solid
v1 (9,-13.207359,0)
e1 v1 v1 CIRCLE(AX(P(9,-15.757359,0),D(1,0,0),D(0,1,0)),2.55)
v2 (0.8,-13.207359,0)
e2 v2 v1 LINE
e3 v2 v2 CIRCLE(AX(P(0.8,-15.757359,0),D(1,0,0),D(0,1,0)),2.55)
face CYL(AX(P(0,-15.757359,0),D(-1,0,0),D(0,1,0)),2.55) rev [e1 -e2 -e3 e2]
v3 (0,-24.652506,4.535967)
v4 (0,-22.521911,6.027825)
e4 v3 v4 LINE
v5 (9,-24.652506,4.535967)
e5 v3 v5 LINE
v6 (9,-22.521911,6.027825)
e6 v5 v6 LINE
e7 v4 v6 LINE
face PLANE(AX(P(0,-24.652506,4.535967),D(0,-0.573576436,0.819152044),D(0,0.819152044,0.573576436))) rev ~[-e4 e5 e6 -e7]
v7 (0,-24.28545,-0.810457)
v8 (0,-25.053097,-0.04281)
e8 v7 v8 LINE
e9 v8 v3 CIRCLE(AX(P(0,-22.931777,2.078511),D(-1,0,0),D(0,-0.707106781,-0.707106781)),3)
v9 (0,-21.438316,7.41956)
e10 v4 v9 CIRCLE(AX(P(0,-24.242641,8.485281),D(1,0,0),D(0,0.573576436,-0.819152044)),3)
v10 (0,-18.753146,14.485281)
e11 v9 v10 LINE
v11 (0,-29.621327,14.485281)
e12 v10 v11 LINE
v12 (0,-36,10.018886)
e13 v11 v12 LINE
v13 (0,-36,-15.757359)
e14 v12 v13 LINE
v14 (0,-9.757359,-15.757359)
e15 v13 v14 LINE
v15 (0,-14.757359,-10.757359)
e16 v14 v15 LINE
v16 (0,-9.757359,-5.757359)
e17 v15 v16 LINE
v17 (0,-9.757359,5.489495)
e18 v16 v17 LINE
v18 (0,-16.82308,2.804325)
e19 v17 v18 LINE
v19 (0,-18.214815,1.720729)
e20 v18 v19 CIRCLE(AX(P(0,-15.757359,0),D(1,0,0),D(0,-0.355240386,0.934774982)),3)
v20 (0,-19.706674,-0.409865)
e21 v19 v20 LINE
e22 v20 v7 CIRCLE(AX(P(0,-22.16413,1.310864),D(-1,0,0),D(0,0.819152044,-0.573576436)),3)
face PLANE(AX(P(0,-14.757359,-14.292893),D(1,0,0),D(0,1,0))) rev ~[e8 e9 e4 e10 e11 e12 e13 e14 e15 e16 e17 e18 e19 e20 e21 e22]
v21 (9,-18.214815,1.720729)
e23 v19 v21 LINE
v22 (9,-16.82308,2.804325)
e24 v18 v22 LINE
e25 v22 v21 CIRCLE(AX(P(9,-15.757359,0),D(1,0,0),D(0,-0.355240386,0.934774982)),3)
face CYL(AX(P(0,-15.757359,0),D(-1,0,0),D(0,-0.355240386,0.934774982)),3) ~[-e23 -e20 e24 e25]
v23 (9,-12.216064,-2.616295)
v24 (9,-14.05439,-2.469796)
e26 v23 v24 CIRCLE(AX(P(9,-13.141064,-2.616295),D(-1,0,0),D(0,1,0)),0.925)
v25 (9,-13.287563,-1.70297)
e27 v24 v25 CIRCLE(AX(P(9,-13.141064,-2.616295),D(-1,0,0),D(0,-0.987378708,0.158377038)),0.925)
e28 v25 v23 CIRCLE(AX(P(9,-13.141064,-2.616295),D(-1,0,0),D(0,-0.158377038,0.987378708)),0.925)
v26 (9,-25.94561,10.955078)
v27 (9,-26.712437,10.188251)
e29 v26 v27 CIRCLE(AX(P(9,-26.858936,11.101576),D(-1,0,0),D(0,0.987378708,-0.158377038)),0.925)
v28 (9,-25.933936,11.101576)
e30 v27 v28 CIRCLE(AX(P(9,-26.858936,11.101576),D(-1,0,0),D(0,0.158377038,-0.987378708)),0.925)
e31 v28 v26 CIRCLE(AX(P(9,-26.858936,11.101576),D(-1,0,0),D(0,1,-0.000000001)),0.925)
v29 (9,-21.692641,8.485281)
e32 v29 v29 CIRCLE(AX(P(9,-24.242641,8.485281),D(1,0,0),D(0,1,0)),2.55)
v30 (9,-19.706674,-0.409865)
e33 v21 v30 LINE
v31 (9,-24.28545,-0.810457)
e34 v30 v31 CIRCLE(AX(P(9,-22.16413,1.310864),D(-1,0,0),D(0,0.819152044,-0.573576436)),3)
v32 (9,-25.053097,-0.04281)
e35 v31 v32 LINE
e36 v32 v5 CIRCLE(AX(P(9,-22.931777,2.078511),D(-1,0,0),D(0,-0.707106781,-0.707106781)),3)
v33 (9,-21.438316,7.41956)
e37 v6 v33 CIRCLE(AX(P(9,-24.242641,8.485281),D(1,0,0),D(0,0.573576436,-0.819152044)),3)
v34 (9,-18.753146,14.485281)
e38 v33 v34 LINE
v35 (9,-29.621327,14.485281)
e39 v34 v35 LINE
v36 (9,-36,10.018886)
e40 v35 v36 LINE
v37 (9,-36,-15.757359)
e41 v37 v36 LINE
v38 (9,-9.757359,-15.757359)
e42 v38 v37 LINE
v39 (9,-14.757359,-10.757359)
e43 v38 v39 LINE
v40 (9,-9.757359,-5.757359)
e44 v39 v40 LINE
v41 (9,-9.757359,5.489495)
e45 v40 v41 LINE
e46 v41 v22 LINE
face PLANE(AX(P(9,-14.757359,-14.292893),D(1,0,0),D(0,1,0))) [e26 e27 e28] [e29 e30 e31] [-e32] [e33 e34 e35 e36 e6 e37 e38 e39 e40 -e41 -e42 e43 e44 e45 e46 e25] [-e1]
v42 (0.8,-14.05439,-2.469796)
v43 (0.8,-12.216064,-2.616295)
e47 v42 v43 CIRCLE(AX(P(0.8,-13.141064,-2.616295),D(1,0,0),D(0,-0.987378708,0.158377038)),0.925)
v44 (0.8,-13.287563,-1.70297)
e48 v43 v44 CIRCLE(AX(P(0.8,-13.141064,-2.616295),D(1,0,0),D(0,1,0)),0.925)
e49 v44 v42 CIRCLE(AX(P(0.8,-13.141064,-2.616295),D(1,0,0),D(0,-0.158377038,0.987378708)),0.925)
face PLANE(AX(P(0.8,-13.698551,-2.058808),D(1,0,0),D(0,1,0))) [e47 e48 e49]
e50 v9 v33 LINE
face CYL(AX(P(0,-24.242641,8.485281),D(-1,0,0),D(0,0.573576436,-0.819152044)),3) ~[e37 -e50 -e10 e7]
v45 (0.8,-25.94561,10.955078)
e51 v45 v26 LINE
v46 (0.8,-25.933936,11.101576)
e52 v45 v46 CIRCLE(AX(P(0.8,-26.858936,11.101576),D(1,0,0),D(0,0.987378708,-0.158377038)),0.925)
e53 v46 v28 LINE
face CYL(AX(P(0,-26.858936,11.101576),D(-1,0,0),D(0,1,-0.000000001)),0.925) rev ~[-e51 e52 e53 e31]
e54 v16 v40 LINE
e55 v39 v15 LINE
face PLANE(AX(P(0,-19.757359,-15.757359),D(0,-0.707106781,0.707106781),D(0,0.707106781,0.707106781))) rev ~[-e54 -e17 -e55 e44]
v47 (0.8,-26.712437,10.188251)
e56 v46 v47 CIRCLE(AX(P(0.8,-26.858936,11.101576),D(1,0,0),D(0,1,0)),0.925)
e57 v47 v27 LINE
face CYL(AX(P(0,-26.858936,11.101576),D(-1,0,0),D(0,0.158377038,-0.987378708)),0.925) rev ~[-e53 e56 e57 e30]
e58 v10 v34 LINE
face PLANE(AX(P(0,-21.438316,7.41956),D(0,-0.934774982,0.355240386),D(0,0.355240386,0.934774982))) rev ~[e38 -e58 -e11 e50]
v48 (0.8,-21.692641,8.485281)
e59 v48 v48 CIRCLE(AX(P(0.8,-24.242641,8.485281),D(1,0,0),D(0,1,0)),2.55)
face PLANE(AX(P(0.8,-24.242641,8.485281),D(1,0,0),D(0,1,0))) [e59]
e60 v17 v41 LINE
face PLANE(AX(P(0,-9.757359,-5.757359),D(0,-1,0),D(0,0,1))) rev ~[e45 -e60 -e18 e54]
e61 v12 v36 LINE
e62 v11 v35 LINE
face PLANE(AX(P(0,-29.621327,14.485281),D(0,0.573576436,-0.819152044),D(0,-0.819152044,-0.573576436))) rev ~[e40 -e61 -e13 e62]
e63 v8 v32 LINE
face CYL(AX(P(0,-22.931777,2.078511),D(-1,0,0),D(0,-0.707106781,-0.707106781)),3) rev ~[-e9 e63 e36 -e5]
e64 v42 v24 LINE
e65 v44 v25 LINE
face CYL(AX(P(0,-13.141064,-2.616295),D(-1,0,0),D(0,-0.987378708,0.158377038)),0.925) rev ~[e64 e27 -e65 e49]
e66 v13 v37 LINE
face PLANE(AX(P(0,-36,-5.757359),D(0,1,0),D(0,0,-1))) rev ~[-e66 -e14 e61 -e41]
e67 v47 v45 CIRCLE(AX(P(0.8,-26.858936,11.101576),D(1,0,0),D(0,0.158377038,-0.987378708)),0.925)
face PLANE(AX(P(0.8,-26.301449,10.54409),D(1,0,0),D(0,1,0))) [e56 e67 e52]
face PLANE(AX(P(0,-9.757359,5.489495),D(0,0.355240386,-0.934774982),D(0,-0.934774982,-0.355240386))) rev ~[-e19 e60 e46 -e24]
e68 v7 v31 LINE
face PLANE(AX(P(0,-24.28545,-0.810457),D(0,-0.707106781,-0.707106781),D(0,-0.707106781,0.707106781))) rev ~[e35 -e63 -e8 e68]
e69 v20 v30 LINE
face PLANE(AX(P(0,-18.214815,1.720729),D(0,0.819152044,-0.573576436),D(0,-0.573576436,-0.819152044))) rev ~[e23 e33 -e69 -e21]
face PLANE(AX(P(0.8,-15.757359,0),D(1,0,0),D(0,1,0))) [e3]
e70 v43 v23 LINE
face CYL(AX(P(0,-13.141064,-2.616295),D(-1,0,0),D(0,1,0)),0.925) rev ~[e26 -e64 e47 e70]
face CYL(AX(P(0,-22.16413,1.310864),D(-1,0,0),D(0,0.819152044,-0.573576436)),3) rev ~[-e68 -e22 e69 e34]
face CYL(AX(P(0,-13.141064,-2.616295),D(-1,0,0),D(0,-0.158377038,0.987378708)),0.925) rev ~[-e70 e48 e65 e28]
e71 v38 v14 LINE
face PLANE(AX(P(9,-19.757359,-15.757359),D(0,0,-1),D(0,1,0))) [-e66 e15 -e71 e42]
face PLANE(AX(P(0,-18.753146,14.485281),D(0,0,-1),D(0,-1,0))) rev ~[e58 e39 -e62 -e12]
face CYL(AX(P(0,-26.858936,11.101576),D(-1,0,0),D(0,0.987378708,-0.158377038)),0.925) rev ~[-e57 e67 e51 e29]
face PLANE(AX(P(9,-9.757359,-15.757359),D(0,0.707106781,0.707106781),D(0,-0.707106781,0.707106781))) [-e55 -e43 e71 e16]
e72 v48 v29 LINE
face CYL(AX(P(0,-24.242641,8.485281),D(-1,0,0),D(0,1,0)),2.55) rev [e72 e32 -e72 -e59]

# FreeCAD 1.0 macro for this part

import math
import FreeCAD as App
import Part
import Sketcher

V = App.Vector
Q = App.Units.Quantity

doc = App.newDocument("Part")
params = doc.addObject("Spreadsheet::Sheet", "Params")
for row, (alias, value) in enumerate([
    ("sketch1_radius", "3 mm"),
    ("sketch1_diameter", "5.1 mm"),
    ("pad1_length", "9 mm"),
    ("sketch2_diameter", "5.1 mm"),
    ("pad2_length", "0.8 mm"),
    ("sketch3_height", "10 mm"),
    ("pad3_length", "9 mm"),
    ("sketch4_width", "10 mm"),
    ("pad4_length", "9 mm"),
], start=1):
    params.set(f"A{row}", alias)
    params.set(f"B{row}", "=" + value)
    params.setAlias(f"B{row}", alias)

body = doc.addObject("PartDesign::Body", "Body")

sketch1 = body.newObject("Sketcher::SketchObject", "Sketch")
sketch1.AttachmentSupport = (doc.getObject("YZ_Plane"), [""])
sketch1.MapMode = "FlatFace"
sketch1.addGeometry([
    Part.ArcOfCircle(Part.Circle(V(-24.24, 8.49, 0), V(0, 0, 1), 3), math.radians(-55), math.radians(-21)),
    Part.LineSegment(V(-21.44, 7.42, 0), V(-18.75, 14.49, 0)),
    Part.LineSegment(V(-18.75, 14.49, 0), V(-29.62, 14.49, 0)),
    Part.LineSegment(V(-29.62, 14.49, 0), V(-36, 10.02, 0)),
    Part.LineSegment(V(-36, 10.02, 0), V(-36, -5.76, 0)),
    Part.LineSegment(V(-36, -5.76, 0), V(-9.76, -5.76, 0)),
    Part.LineSegment(V(-9.76, -5.76, 0), V(-9.76, 5.49, 0)),
    Part.LineSegment(V(-9.76, 5.49, 0), V(-16.82, 2.8, 0)),
    Part.ArcOfCircle(Part.Circle(V(-15.76, 0, 0), V(0, 0, 1), 3), math.radians(111), math.radians(145)),
    Part.LineSegment(V(-18.21, 1.72, 0), V(-19.71, -0.41, 0)),
    Part.ArcOfCircle(Part.Circle(V(-22.16, 1.31, 0), V(0, 0, 1), 3), math.radians(-135), math.radians(-35)),
    Part.LineSegment(V(-24.29, -0.81, 0), V(-25.05, -0.04, 0)),
    Part.ArcOfCircle(Part.Circle(V(-22.93, 2.08, 0), V(0, 0, 1), 3), math.radians(125), math.radians(225)),
    Part.LineSegment(V(-24.65, 4.54, 0), V(-22.52, 6.03, 0)),
    Part.ArcOfCircle(Part.Circle(V(-13.14, -2.62, 0), V(0, 0, 1), 0.93), math.radians(0), math.radians(99)),
    Part.ArcOfCircle(Part.Circle(V(-13.14, -2.62, 0), V(0, 0, 1), 0.93), math.radians(171), math.radians(360)),
    Part.ArcOfCircle(Part.Circle(V(-13.14, -2.62, 0), V(0, 0, 1), 0.93), math.radians(99), math.radians(171)),
    Part.Circle(V(-15.76, 0, 0), V(0, 0, 1), 2.55),
    Part.Circle(V(-24.24, 8.49, 0), V(0, 0, 1), 2.55),
    Part.ArcOfCircle(Part.Circle(V(-26.86, 11.1, 0), V(0, 0, 1), 0.93), math.radians(-81), math.radians(-9)),
    Part.ArcOfCircle(Part.Circle(V(-26.86, 11.1, 0), V(0, 0, 1), 0.93), math.radians(0), math.radians(279)),
    Part.ArcOfCircle(Part.Circle(V(-26.86, 11.1, 0), V(0, 0, 1), 0.93), math.radians(-9.11), math.radians(0)),
], False)
sketch1.addConstraint([
    Sketcher.Constraint("Tangent", 0, 2, 1, 1),
    Sketcher.Constraint("Coincident", 1, 2, 2, 1),
    Sketcher.Constraint("Coincident", 2, 2, 3, 1),
    Sketcher.Constraint("Coincident", 3, 2, 4, 1),
    Sketcher.Constraint("Coincident", 4, 2, 5, 1),
    Sketcher.Constraint("Coincident", 5, 2, 6, 1),
    Sketcher.Constraint("Coincident", 6, 2, 7, 1),
    Sketcher.Constraint("Tangent", 7, 2, 8, 1),
    Sketcher.Constraint("Tangent", 8, 2, 9, 1),
    Sketcher.Constraint("Tangent", 9, 2, 10, 2),
    Sketcher.Constraint("Tangent", 10, 1, 11, 1),
    Sketcher.Constraint("Tangent", 11, 2, 12, 2),
    Sketcher.Constraint("Tangent", 12, 1, 13, 1),
    Sketcher.Constraint("Tangent", 13, 2, 0, 1),
    Sketcher.Constraint("Tangent", 14, 1, 15, 2),
    Sketcher.Constraint("Tangent", 15, 1, 16, 2),
    Sketcher.Constraint("Tangent", 16, 1, 14, 2),
    Sketcher.Constraint("Tangent", 19, 1, 20, 2),
    Sketcher.Constraint("Tangent", 20, 1, 21, 2),
    Sketcher.Constraint("Tangent", 21, 1, 19, 2),
    Sketcher.Constraint("Horizontal", 2),
    Sketcher.Constraint("Vertical", 4),
    Sketcher.Constraint("Horizontal", 5),
    Sketcher.Constraint("Vertical", 6),
    Sketcher.Constraint("Coincident", 17, 3, 8, 3),
    Sketcher.Constraint("Coincident", 18, 3, 0, 3),
    Sketcher.Constraint("Equal", 0, 8),
    Sketcher.Constraint("Equal", 8, 10),
    Sketcher.Constraint("Equal", 10, 12),
    Sketcher.Constraint("Equal", 17, 18),
    Sketcher.Constraint("Equal", 16, 19),
    Sketcher.Constraint("PointOnObject", 8, 3, -1),
    Sketcher.Constraint("Parallel", 3, 13),
    Sketcher.Constraint("Horizontal", 16, 3, 14, 1),
    Sketcher.Constraint("Horizontal", 21, 3, 20, 1),
    Sketcher.Constraint("Equal", 1, 7),
    Sketcher.Constraint("Equal", 9, 13),
    Sketcher.Constraint("Radius", 0, Q("3 mm")),
    Sketcher.Constraint("Diameter", 17, Q("5.1 mm")),
    Sketcher.Constraint("Angle", 3, Q("-145 deg")),
    Sketcher.Constraint("Angle", 9, Q("-125 deg")),
    Sketcher.Constraint("Angle", 11, Q("135 deg")),
    Sketcher.Constraint("DistanceX", 3, 2, -1, 1, Q("36 mm")),
    Sketcher.Constraint("Radius", 14, Q("0.925 mm")),
    Sketcher.Constraint("DistanceY", 0, 3, 1, 2, Q("6 mm")),
    Sketcher.Constraint("DistanceX", 8, 3, 5, 2, Q("6 mm")),
    Sketcher.Constraint("DistanceX", 2, 2, 2, 1, Q("10.868181 mm")),
    Sketcher.Constraint("DistanceX", 5, 1, 5, 2, Q("26.242641 mm")),
    Sketcher.Constraint("DistanceY", 14, 3, 15, 1, Q("0.146499 mm")),
    Sketcher.Constraint("DistanceX", 16, 1, 14, 3, Q("0.146499 mm")),
    Sketcher.Constraint("DistanceX", 19, 3, 19, 1, Q("0.146499 mm")),
    Sketcher.Constraint("DistanceY", 21, 1, 20, 1, Q("0.146499 mm")),
    Sketcher.Constraint("Distance", 1, Q("7.55874 mm")),
    Sketcher.Constraint("Distance", 3, Q("7.786922 mm")),
    Sketcher.Constraint("DistanceY", 4, 2, 4, 1, Q("15.776246 mm")),
    Sketcher.Constraint("DistanceX", 10, 3, -1, 1, Q("22.16413 mm")),
    Sketcher.Constraint("DistanceX", 15, 1, -1, 1, Q("14.05439 mm")),
    Sketcher.Constraint("DistanceY", 16, 1, -1, 1, Q("1.70297 mm")),
    Sketcher.Constraint("DistanceY", -1, 1, 19, 1, Q("10.188251 mm")),
    Sketcher.Constraint("DistanceX", 21, 1, -1, 1, Q("25.94561 mm")),
])
sketch1.setExpression("Constraints[37]", "Params.sketch1_radius")
sketch1.setExpression("Constraints[38]", "Params.sketch1_diameter")
pad1 = body.newObject("PartDesign::Pad", "Pad")
pad1.Profile = sketch1
pad1.setExpression("Length", "Params.pad1_length")

sketch2 = body.newObject("Sketcher::SketchObject", "Sketch001")
sketch2.AttachmentSupport = (doc.getObject("YZ_Plane"), [""])
sketch2.MapMode = "FlatFace"
sketch2.addGeometry([
    Part.Circle(V(-15.76, 0, 0), V(0, 0, 1), 2.55),
    Part.Circle(V(-24.24, 8.49, 0), V(0, 0, 1), 2.55),
    Part.ArcOfCircle(Part.Circle(V(-26.86, 11.1, 0), V(0, 0, 1), 0.93), math.radians(-81), math.radians(-9)),
    Part.ArcOfCircle(Part.Circle(V(-26.86, 11.1, 0), V(0, 0, 1), 0.93), math.radians(-9.11), math.radians(0)),
    Part.ArcOfCircle(Part.Circle(V(-26.86, 11.1, 0), V(0, 0, 1), 0.93), math.radians(0), math.radians(279)),
    Part.ArcOfCircle(Part.Circle(V(-13.14, -2.62, 0), V(0, 0, 1), 0.93), math.radians(99), math.radians(171)),
    Part.ArcOfCircle(Part.Circle(V(-13.14, -2.62, 0), V(0, 0, 1), 0.93), math.radians(171), math.radians(360)),
    Part.ArcOfCircle(Part.Circle(V(-13.14, -2.62, 0), V(0, 0, 1), 0.93), math.radians(0), math.radians(99)),
], False)
sketch2.addConstraint([
    Sketcher.Constraint("Tangent", 2, 2, 3, 1),
    Sketcher.Constraint("Tangent", 3, 2, 4, 1),
    Sketcher.Constraint("Tangent", 4, 2, 2, 1),
    Sketcher.Constraint("Tangent", 5, 2, 6, 1),
    Sketcher.Constraint("Tangent", 6, 2, 7, 1),
    Sketcher.Constraint("Tangent", 7, 2, 5, 1),
    Sketcher.Constraint("Equal", 0, 1),
    Sketcher.Constraint("Equal", 4, 5),
    Sketcher.Constraint("PointOnObject", 0, 3, -1),
    Sketcher.Constraint("Horizontal", 4, 3, 3, 2),
    Sketcher.Constraint("Horizontal", 7, 3, 6, 2),
    Sketcher.Constraint("Diameter", 0, Q("5.1 mm")),
    Sketcher.Constraint("Radius", 2, Q("0.925 mm")),
    Sketcher.Constraint("DistanceY", 2, 2, 2, 3, Q("0.146499 mm")),
    Sketcher.Constraint("DistanceX", 2, 3, 4, 2, Q("0.146499 mm")),
    Sketcher.Constraint("DistanceY", 5, 3, 5, 2, Q("0.146499 mm")),
    Sketcher.Constraint("DistanceX", 7, 2, 5, 3, Q("0.146499 mm")),
    Sketcher.Constraint("DistanceX", 0, 3, -1, 1, Q("15.757359 mm")),
    Sketcher.Constraint("DistanceX", 1, 3, -1, 1, Q("24.242641 mm")),
    Sketcher.Constraint("DistanceY", -1, 1, 1, 3, Q("8.485281 mm")),
    Sketcher.Constraint("DistanceX", 2, 2, -1, 1, Q("25.94561 mm")),
    Sketcher.Constraint("DistanceY", -1, 1, 4, 2, Q("10.188251 mm")),
    Sketcher.Constraint("DistanceX", 5, 2, -1, 1, Q("14.05439 mm")),
    Sketcher.Constraint("DistanceY", 7, 2, -1, 1, Q("1.70297 mm")),
])
sketch2.setExpression("Constraints[11]", "Params.sketch2_diameter")
pad2 = body.newObject("PartDesign::Pad", "Pad001")
pad2.Profile = sketch2
pad2.setExpression("Length", "Params.pad2_length")

sketch3 = body.newObject("Sketcher::SketchObject", "Sketch002")
sketch3.AttachmentSupport = (doc.getObject("YZ_Plane"), [""])
sketch3.MapMode = "FlatFace"
sketch3.addGeometry([
    Part.LineSegment(V(-36, -6, 0), V(-36, -16, 0)),
    Part.LineSegment(V(-36, -16, 0), V(-20, -16, 0)),
    Part.LineSegment(V(-20, -16, 0), V(-10, -6, 0)),
    Part.LineSegment(V(-10, -6, 0), V(-36, -6, 0)),
], False)
sketch3.addConstraint([
    Sketcher.Constraint("Coincident", 0, 2, 1, 1),
    Sketcher.Constraint("Coincident", 1, 2, 2, 1),
    Sketcher.Constraint("Coincident", 2, 2, 3, 1),
    Sketcher.Constraint("Coincident", 3, 2, 0, 1),
    Sketcher.Constraint("Vertical", 0),
    Sketcher.Constraint("Horizontal", 1),
    Sketcher.Constraint("Horizontal", 3),
    Sketcher.Constraint("DistanceY", 0, 2, 0, 1, Q("10 mm")),
    Sketcher.Constraint("Angle", 2, Q("45 deg")),
    Sketcher.Constraint("DistanceX", 0, 2, -1, 1, Q("36 mm")),
    Sketcher.Constraint("DistanceX", 1, 1, 1, 2, Q("16.242641 mm")),
    Sketcher.Constraint("DistanceY", 0, 2, -1, 1, Q("15.757359 mm")),
])
sketch3.setExpression("Constraints[7]", "Params.sketch3_height")
pad3 = body.newObject("PartDesign::Pad", "Pad002")
pad3.Profile = sketch3
pad3.setExpression("Length", "Params.pad3_length")

sketch4 = body.newObject("Sketcher::SketchObject", "Sketch003")
sketch4.AttachmentSupport = (doc.getObject("YZ_Plane"), [""])
sketch4.MapMode = "FlatFace"
sketch4.AttachmentOffset = App.Placement(V(0, 0, 9), App.Rotation())
sketch4.addGeometry([
    Part.LineSegment(V(-10, -16, 0), V(-15, -11, 0)),
    Part.LineSegment(V(-15, -11, 0), V(-20, -16, 0)),
    Part.LineSegment(V(-20, -16, 0), V(-10, -16, 0)),
], False)
sketch4.addConstraint([
    Sketcher.Constraint("Coincident", 0, 2, 1, 1),
    Sketcher.Constraint("Coincident", 1, 2, 2, 1),
    Sketcher.Constraint("Coincident", 2, 2, 0, 1),
    Sketcher.Constraint("Horizontal", 2),
    Sketcher.Constraint("Perpendicular", 0, 1),
    Sketcher.Constraint("Equal", 0, 1),
    Sketcher.Constraint("DistanceX", 2, 1, 2, 2, Q("10 mm")),
    Sketcher.Constraint("DistanceX", 0, 2, -1, 1, Q("14.757359 mm")),
    Sketcher.Constraint("DistanceY", 0, 2, -1, 1, Q("10.757359 mm")),
])
sketch4.setExpression("Constraints[6]", "Params.sketch4_width")
pad4 = body.newObject("PartDesign::Pad", "Pad003")
pad4.Profile = sketch4
pad4.setExpression("Length", "Params.pad4_length")
pad4.Reversed = True

doc.recompute()
